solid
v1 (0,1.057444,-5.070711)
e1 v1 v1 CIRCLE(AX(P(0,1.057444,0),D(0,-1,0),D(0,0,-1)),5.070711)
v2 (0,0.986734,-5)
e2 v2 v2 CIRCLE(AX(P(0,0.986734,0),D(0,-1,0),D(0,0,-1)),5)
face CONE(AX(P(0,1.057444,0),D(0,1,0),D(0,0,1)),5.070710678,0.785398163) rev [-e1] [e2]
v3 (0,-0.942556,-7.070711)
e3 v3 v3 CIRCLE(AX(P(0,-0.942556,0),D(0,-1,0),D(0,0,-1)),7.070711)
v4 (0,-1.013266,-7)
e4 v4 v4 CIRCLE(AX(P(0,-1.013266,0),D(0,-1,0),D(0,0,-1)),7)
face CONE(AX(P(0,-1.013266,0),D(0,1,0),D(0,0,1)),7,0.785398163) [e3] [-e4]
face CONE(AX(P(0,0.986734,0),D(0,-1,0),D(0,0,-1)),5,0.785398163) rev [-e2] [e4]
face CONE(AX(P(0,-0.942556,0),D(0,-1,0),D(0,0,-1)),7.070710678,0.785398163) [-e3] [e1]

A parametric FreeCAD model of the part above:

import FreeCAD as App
import Part
import Sketcher
Q = App.Units.Quantity

doc = App.newDocument("Part")
body = doc.addObject("PartDesign::Body", "Body")

# Sketch on YZ plane
sketch1 = body.newObject("Sketcher::SketchObject", "Sketch")
sketch1.AttachmentSupport = (doc.getObject("YZ_Plane"), [""])
sketch1.MapMode = "FlatFace"
sketch1.addGeometry(Part.LineSegment(App.Vector(0.99, -5, 0), App.Vector(-1.01, -7, 0)), False)
sketch1.addGeometry(Part.LineSegment(App.Vector(-1.01, -7, 0), App.Vector(-0.94, -7.07, 0)), False)
sketch1.addGeometry(Part.LineSegment(App.Vector(-0.94, -7.07, 0), App.Vector(1.06, -5.07, 0)), False)
sketch1.addGeometry(Part.LineSegment(App.Vector(1.06, -5.07, 0), App.Vector(0.99, -5, 0)), False)
sketch1.addConstraint(Sketcher.Constraint("Coincident", 0, 2, 1, 1))
sketch1.addConstraint(Sketcher.Constraint("Coincident", 1, 2, 2, 1))
sketch1.addConstraint(Sketcher.Constraint("Coincident", 2, 2, 3, 1))
sketch1.addConstraint(Sketcher.Constraint("Coincident", 3, 2, 0, 1))
sketch1.addConstraint(Sketcher.Constraint("Perpendicular", 0, 1))
sketch1.addConstraint(Sketcher.Constraint("Perpendicular", 1, 2))
sketch1.addConstraint(Sketcher.Constraint("Perpendicular", 2, 3))
sketch1.addConstraint(Sketcher.Constraint("Angle", 0, Q("-135 deg")))
sketch1.addConstraint(Sketcher.Constraint("DistanceY", 0, 2, -1, 1, Q("7 mm")))
sketch1.addConstraint(Sketcher.Constraint("DistanceY", 3, 2, -1, 1, Q("5 mm")))
sketch1.addConstraint(Sketcher.Constraint("Distance", 1, Q("0.1 mm")))
sketch1.addConstraint(Sketcher.Constraint("DistanceX", 0, 2, -1, 1, Q("1.013266 mm")))
revolution = body.newObject("PartDesign::Revolution", "Revolution")
revolution.Profile = sketch1
revolution.ReferenceAxis = (sketch1, ["H_Axis"])
revolution.Angle = 360

doc.recompute()
